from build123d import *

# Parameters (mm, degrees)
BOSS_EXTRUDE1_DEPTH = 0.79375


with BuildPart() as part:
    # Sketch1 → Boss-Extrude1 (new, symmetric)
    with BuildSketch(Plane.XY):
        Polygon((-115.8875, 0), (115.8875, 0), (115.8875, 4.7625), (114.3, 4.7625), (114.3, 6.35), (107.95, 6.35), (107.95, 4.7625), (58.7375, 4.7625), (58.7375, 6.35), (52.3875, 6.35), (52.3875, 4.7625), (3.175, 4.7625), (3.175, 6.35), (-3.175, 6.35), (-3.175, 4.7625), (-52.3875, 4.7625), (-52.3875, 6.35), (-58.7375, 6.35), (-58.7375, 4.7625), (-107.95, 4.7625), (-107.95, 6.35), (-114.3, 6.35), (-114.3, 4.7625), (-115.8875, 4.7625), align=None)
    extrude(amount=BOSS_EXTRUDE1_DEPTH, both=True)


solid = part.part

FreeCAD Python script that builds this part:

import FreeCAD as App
import Part
import Sketcher
Q = App.Units.Quantity


def add_polygon(sketch, points):
    """Adds a closed chain of lines whose ends are joined by coincident constraints."""
    first, n = sketch.GeometryCount, len(points)
    for a, b in zip(points, points[1:] + points[:1]):
        sketch.addGeometry(Part.LineSegment(App.Vector(*a, 0), App.Vector(*b, 0)), False)
    for i in range(n):
        sketch.addConstraint(Sketcher.Constraint("Coincident", first + i, 2, first + (i + 1) % n, 1))

doc = App.newDocument("Part")
body = doc.addObject("PartDesign::Body", "Body")

# Sketch on XY plane
sketch1 = body.newObject("Sketcher::SketchObject", "Sketch")
sketch1.AttachmentSupport = (doc.getObject("XY_Plane"), [""])
sketch1.MapMode = "FlatFace"
add_polygon(sketch1, [(-115.8875, 0), (115.8875, 0), (115.8875, 4.7625), (114.3, 4.7625), (114.3, 6.35), (107.95, 6.35), (107.95, 4.7625), (58.7375, 4.7625), (58.7375, 6.35), (52.3875, 6.35), (52.3875, 4.7625), (3.175, 4.7625), (3.175, 6.35), (-3.175, 6.35), (-3.175, 4.7625), (-52.3875, 4.7625), (-52.3875, 6.35), (-58.7375, 6.35), (-58.7375, 4.7625), (-107.95, 4.7625), (-107.95, 6.35), (-114.3, 6.35), (-114.3, 4.7625), (-115.8875, 4.7625)])  # lines 0-23
sketch1.addConstraint(Sketcher.Constraint("Horizontal", 0))
sketch1.addConstraint(Sketcher.Constraint("Vertical", 1))
sketch1.addConstraint(Sketcher.Constraint("Horizontal", 2))
sketch1.addConstraint(Sketcher.Constraint("Vertical", 3))
sketch1.addConstraint(Sketcher.Constraint("Horizontal", 4))
sketch1.addConstraint(Sketcher.Constraint("Vertical", 5))
sketch1.addConstraint(Sketcher.Constraint("Horizontal", 6))
sketch1.addConstraint(Sketcher.Constraint("Vertical", 7))
sketch1.addConstraint(Sketcher.Constraint("Horizontal", 8))
sketch1.addConstraint(Sketcher.Constraint("Vertical", 9))
sketch1.addConstraint(Sketcher.Constraint("Horizontal", 10))
sketch1.addConstraint(Sketcher.Constraint("Vertical", 11))
sketch1.addConstraint(Sketcher.Constraint("Horizontal", 12))
sketch1.addConstraint(Sketcher.Constraint("Vertical", 13))
sketch1.addConstraint(Sketcher.Constraint("Horizontal", 14))
sketch1.addConstraint(Sketcher.Constraint("Vertical", 15))
sketch1.addConstraint(Sketcher.Constraint("Horizontal", 16))
sketch1.addConstraint(Sketcher.Constraint("Vertical", 17))
sketch1.addConstraint(Sketcher.Constraint("Horizontal", 18))
sketch1.addConstraint(Sketcher.Constraint("Vertical", 19))
sketch1.addConstraint(Sketcher.Constraint("Horizontal", 20))
sketch1.addConstraint(Sketcher.Constraint("Vertical", 21))
sketch1.addConstraint(Sketcher.Constraint("Horizontal", 22))
sketch1.addConstraint(Sketcher.Constraint("Vertical", 23))
sketch1.addConstraint(Sketcher.Constraint("Symmetric", 0, 2, 23, 2, -1, 1))
sketch1.addConstraint(Sketcher.Constraint("Symmetric", 10, 2, 13, 2, -2))
sketch1.addConstraint(Sketcher.Constraint("Symmetric", 8, 2, 15, 2, -2))
sketch1.addConstraint(Sketcher.Constraint("Symmetric", 6, 2, 17, 2, -2))
sketch1.addConstraint(Sketcher.Constraint("Symmetric", 4, 2, 19, 2, -2))
sketch1.addConstraint(Sketcher.Constraint("Symmetric", 2, 2, 21, 2, -2))
sketch1.addConstraint(Sketcher.Constraint("Horizontal", 2, 2, 5, 2))
sketch1.addConstraint(Sketcher.Constraint("Horizontal", 4, 2, 7, 2))
sketch1.addConstraint(Sketcher.Constraint("Horizontal", 6, 2, 9, 2))
sketch1.addConstraint(Sketcher.Constraint("Horizontal", 8, 2, 11, 2))
sketch1.addConstraint(Sketcher.Constraint("Equal", 4, 8))
sketch1.addConstraint(Sketcher.Constraint("Equal", 6, 10))
sketch1.addConstraint(Sketcher.Constraint("Equal", 8, 12))
sketch1.addConstraint(Sketcher.Constraint("Equal", 22, 3))
sketch1.addConstraint(Sketcher.Constraint("DistanceX", 4, 2, 4, 1, Q("0.25 in")))
sketch1.addConstraint(Sketcher.Constraint("DistanceX", -1, 1, 2, 2, Q("4.5 in")))
sketch1.addConstraint(Sketcher.Constraint("DistanceX", 0, 1, 0, 2, Q("9.125 in")))
sketch1.addConstraint(Sketcher.Constraint("DistanceY", 1, 1, 1, 2, Q("0.1875 in")))
pad1 = body.newObject("PartDesign::Pad", "Pad")
pad1.Profile = sketch1
pad1.Length = Q("0.0625 in")
pad1.Midplane = True

doc.recompute()
